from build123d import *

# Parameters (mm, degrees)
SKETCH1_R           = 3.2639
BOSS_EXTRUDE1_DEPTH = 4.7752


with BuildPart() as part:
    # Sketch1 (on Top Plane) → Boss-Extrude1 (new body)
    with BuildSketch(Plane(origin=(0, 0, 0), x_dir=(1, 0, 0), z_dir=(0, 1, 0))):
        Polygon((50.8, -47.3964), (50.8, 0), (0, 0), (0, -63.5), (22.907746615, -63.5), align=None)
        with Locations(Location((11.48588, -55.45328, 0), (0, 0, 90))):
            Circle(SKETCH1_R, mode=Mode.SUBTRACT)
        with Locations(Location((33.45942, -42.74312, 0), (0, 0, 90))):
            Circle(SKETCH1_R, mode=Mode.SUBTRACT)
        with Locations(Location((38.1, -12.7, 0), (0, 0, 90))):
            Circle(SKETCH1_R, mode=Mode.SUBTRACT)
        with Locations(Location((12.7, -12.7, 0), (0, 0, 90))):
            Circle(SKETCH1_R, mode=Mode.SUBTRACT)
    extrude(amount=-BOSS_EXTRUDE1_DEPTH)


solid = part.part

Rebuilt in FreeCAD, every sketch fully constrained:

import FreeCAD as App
import Part
import Sketcher
from FreeCAD import Vector
Q = App.Units.Quantity

doc = App.newDocument("Part")
params = doc.addObject("Spreadsheet::Sheet", "Params")
for row, (alias, value) in enumerate([
    ("sketch1_width", "2 in"),
    ("sketch1_diameter", "0.257 in"),
    ("sketch1_height", "2.5 in"),
    ("sketch1_height2", "1.866 in"),
    ("pad1_length", "0.188 in"),
], start=1):
    params.set(f"A{row}", alias)
    params.set(f"B{row}", "=" + value)
    params.setAlias(f"B{row}", alias)

body = doc.addObject("PartDesign::Body", "Body")

# Sketch on XZ plane
sketch1 = body.newObject("Sketcher::SketchObject", "Sketch")
sketch1.AttachmentSupport = (doc.getObject("XZ_Plane"), [""])
sketch1.MapMode = "FlatFace"
sketch1.addGeometry(Part.LineSegment(Vector(50.8, 47.3964, 0), Vector(50.8, 0, 0)), False)
sketch1.addGeometry(Part.LineSegment(Vector(50.8, 0, 0), Vector(0, 0, 0)), False)
sketch1.addGeometry(Part.LineSegment(Vector(0, 0, 0), Vector(0, 63.5, 0)), False)
sketch1.addGeometry(Part.LineSegment(Vector(0, 63.5, 0), Vector(22.907747, 63.5, 0)), False)
sketch1.addGeometry(Part.LineSegment(Vector(22.907747, 63.5, 0), Vector(50.8, 47.3964, 0)), False)
sketch1.addGeometry(Part.Circle(Vector(11.48588, 55.45328, 0), Vector(0, 0, 1), 3.2639), False)
sketch1.addGeometry(Part.Circle(Vector(33.45942, 42.74312, 0), Vector(0, 0, 1), 3.2639), False)
sketch1.addGeometry(Part.Circle(Vector(12.7, 12.7, 0), Vector(0, 0, 1), 3.2639), False)
sketch1.addGeometry(Part.Circle(Vector(38.1, 12.7, 0), Vector(0, 0, 1), 3.2639), False)
sketch1.addConstraint(Sketcher.Constraint("Coincident", 0, 2, 1, 1))
sketch1.addConstraint(Sketcher.Constraint("Coincident", 1, 2, 2, 1))
sketch1.addConstraint(Sketcher.Constraint("Coincident", 2, 2, 3, 1))
sketch1.addConstraint(Sketcher.Constraint("Coincident", 3, 2, 4, 1))
sketch1.addConstraint(Sketcher.Constraint("Coincident", 4, 2, 0, 1))
sketch1.addConstraint(Sketcher.Constraint("Vertical", 0))
sketch1.addConstraint(Sketcher.Constraint("Horizontal", 1))
sketch1.addConstraint(Sketcher.Constraint("Vertical", 2))
sketch1.addConstraint(Sketcher.Constraint("Horizontal", 3))
sketch1.addConstraint(Sketcher.Constraint("Coincident", 1, 2, -1, 1))
sketch1.addConstraint(Sketcher.Constraint("Equal", 5, 6))
sketch1.addConstraint(Sketcher.Constraint("Equal", 6, 7))
sketch1.addConstraint(Sketcher.Constraint("Equal", 7, 8))
sketch1.addConstraint(Sketcher.Constraint("Horizontal", 7, 3, 8, 3))
sketch1.addConstraint(Sketcher.Constraint("DistanceX", 1, 2, 1, 1, Q("2 in")))
sketch1.addConstraint(Sketcher.Constraint("Diameter", 5, Q("0.257 in")))
sketch1.addConstraint(Sketcher.Constraint("DistanceY", 2, 1, 2, 2, Q("2.5 in")))
sketch1.addConstraint(Sketcher.Constraint("Angle", 4, Q("-30 deg")))
sketch1.addConstraint(Sketcher.Constraint("DistanceX", 7, 3, 8, 3, Q("1 in")))
sketch1.addConstraint(Sketcher.Constraint("DistanceY", 7, 3, 2, 2, Q("2 in")))
sketch1.addConstraint(Sketcher.Constraint("DistanceX", -1, 1, 7, 3, Q("0.5 in")))
sketch1.addConstraint(Sketcher.Constraint("DistanceY", 0, 2, 0, 1, Q("1.866 in")))
sketch1.addConstraint(Sketcher.Constraint("DistanceX", -1, 1, 5, 3, Q("0.4522 in")))
sketch1.addConstraint(Sketcher.Constraint("DistanceY", -1, 1, 5, 3, Q("2.1832 in")))
sketch1.addConstraint(Sketcher.Constraint("DistanceX", -1, 1, 6, 3, Q("1.3173 in")))
sketch1.addConstraint(Sketcher.Constraint("DistanceY", -1, 1, 6, 3, Q("1.6828 in")))
sketch1.setExpression("Constraints[14]", "Params.sketch1_width")
sketch1.setExpression("Constraints[15]", "Params.sketch1_diameter")
sketch1.setExpression("Constraints[16]", "Params.sketch1_height")
sketch1.setExpression("Constraints[21]", "Params.sketch1_height2")
pad1 = body.newObject("PartDesign::Pad", "Pad")
pad1.Profile = sketch1
pad1.setExpression("Length", "Params.pad1_length")

doc.recompute()
